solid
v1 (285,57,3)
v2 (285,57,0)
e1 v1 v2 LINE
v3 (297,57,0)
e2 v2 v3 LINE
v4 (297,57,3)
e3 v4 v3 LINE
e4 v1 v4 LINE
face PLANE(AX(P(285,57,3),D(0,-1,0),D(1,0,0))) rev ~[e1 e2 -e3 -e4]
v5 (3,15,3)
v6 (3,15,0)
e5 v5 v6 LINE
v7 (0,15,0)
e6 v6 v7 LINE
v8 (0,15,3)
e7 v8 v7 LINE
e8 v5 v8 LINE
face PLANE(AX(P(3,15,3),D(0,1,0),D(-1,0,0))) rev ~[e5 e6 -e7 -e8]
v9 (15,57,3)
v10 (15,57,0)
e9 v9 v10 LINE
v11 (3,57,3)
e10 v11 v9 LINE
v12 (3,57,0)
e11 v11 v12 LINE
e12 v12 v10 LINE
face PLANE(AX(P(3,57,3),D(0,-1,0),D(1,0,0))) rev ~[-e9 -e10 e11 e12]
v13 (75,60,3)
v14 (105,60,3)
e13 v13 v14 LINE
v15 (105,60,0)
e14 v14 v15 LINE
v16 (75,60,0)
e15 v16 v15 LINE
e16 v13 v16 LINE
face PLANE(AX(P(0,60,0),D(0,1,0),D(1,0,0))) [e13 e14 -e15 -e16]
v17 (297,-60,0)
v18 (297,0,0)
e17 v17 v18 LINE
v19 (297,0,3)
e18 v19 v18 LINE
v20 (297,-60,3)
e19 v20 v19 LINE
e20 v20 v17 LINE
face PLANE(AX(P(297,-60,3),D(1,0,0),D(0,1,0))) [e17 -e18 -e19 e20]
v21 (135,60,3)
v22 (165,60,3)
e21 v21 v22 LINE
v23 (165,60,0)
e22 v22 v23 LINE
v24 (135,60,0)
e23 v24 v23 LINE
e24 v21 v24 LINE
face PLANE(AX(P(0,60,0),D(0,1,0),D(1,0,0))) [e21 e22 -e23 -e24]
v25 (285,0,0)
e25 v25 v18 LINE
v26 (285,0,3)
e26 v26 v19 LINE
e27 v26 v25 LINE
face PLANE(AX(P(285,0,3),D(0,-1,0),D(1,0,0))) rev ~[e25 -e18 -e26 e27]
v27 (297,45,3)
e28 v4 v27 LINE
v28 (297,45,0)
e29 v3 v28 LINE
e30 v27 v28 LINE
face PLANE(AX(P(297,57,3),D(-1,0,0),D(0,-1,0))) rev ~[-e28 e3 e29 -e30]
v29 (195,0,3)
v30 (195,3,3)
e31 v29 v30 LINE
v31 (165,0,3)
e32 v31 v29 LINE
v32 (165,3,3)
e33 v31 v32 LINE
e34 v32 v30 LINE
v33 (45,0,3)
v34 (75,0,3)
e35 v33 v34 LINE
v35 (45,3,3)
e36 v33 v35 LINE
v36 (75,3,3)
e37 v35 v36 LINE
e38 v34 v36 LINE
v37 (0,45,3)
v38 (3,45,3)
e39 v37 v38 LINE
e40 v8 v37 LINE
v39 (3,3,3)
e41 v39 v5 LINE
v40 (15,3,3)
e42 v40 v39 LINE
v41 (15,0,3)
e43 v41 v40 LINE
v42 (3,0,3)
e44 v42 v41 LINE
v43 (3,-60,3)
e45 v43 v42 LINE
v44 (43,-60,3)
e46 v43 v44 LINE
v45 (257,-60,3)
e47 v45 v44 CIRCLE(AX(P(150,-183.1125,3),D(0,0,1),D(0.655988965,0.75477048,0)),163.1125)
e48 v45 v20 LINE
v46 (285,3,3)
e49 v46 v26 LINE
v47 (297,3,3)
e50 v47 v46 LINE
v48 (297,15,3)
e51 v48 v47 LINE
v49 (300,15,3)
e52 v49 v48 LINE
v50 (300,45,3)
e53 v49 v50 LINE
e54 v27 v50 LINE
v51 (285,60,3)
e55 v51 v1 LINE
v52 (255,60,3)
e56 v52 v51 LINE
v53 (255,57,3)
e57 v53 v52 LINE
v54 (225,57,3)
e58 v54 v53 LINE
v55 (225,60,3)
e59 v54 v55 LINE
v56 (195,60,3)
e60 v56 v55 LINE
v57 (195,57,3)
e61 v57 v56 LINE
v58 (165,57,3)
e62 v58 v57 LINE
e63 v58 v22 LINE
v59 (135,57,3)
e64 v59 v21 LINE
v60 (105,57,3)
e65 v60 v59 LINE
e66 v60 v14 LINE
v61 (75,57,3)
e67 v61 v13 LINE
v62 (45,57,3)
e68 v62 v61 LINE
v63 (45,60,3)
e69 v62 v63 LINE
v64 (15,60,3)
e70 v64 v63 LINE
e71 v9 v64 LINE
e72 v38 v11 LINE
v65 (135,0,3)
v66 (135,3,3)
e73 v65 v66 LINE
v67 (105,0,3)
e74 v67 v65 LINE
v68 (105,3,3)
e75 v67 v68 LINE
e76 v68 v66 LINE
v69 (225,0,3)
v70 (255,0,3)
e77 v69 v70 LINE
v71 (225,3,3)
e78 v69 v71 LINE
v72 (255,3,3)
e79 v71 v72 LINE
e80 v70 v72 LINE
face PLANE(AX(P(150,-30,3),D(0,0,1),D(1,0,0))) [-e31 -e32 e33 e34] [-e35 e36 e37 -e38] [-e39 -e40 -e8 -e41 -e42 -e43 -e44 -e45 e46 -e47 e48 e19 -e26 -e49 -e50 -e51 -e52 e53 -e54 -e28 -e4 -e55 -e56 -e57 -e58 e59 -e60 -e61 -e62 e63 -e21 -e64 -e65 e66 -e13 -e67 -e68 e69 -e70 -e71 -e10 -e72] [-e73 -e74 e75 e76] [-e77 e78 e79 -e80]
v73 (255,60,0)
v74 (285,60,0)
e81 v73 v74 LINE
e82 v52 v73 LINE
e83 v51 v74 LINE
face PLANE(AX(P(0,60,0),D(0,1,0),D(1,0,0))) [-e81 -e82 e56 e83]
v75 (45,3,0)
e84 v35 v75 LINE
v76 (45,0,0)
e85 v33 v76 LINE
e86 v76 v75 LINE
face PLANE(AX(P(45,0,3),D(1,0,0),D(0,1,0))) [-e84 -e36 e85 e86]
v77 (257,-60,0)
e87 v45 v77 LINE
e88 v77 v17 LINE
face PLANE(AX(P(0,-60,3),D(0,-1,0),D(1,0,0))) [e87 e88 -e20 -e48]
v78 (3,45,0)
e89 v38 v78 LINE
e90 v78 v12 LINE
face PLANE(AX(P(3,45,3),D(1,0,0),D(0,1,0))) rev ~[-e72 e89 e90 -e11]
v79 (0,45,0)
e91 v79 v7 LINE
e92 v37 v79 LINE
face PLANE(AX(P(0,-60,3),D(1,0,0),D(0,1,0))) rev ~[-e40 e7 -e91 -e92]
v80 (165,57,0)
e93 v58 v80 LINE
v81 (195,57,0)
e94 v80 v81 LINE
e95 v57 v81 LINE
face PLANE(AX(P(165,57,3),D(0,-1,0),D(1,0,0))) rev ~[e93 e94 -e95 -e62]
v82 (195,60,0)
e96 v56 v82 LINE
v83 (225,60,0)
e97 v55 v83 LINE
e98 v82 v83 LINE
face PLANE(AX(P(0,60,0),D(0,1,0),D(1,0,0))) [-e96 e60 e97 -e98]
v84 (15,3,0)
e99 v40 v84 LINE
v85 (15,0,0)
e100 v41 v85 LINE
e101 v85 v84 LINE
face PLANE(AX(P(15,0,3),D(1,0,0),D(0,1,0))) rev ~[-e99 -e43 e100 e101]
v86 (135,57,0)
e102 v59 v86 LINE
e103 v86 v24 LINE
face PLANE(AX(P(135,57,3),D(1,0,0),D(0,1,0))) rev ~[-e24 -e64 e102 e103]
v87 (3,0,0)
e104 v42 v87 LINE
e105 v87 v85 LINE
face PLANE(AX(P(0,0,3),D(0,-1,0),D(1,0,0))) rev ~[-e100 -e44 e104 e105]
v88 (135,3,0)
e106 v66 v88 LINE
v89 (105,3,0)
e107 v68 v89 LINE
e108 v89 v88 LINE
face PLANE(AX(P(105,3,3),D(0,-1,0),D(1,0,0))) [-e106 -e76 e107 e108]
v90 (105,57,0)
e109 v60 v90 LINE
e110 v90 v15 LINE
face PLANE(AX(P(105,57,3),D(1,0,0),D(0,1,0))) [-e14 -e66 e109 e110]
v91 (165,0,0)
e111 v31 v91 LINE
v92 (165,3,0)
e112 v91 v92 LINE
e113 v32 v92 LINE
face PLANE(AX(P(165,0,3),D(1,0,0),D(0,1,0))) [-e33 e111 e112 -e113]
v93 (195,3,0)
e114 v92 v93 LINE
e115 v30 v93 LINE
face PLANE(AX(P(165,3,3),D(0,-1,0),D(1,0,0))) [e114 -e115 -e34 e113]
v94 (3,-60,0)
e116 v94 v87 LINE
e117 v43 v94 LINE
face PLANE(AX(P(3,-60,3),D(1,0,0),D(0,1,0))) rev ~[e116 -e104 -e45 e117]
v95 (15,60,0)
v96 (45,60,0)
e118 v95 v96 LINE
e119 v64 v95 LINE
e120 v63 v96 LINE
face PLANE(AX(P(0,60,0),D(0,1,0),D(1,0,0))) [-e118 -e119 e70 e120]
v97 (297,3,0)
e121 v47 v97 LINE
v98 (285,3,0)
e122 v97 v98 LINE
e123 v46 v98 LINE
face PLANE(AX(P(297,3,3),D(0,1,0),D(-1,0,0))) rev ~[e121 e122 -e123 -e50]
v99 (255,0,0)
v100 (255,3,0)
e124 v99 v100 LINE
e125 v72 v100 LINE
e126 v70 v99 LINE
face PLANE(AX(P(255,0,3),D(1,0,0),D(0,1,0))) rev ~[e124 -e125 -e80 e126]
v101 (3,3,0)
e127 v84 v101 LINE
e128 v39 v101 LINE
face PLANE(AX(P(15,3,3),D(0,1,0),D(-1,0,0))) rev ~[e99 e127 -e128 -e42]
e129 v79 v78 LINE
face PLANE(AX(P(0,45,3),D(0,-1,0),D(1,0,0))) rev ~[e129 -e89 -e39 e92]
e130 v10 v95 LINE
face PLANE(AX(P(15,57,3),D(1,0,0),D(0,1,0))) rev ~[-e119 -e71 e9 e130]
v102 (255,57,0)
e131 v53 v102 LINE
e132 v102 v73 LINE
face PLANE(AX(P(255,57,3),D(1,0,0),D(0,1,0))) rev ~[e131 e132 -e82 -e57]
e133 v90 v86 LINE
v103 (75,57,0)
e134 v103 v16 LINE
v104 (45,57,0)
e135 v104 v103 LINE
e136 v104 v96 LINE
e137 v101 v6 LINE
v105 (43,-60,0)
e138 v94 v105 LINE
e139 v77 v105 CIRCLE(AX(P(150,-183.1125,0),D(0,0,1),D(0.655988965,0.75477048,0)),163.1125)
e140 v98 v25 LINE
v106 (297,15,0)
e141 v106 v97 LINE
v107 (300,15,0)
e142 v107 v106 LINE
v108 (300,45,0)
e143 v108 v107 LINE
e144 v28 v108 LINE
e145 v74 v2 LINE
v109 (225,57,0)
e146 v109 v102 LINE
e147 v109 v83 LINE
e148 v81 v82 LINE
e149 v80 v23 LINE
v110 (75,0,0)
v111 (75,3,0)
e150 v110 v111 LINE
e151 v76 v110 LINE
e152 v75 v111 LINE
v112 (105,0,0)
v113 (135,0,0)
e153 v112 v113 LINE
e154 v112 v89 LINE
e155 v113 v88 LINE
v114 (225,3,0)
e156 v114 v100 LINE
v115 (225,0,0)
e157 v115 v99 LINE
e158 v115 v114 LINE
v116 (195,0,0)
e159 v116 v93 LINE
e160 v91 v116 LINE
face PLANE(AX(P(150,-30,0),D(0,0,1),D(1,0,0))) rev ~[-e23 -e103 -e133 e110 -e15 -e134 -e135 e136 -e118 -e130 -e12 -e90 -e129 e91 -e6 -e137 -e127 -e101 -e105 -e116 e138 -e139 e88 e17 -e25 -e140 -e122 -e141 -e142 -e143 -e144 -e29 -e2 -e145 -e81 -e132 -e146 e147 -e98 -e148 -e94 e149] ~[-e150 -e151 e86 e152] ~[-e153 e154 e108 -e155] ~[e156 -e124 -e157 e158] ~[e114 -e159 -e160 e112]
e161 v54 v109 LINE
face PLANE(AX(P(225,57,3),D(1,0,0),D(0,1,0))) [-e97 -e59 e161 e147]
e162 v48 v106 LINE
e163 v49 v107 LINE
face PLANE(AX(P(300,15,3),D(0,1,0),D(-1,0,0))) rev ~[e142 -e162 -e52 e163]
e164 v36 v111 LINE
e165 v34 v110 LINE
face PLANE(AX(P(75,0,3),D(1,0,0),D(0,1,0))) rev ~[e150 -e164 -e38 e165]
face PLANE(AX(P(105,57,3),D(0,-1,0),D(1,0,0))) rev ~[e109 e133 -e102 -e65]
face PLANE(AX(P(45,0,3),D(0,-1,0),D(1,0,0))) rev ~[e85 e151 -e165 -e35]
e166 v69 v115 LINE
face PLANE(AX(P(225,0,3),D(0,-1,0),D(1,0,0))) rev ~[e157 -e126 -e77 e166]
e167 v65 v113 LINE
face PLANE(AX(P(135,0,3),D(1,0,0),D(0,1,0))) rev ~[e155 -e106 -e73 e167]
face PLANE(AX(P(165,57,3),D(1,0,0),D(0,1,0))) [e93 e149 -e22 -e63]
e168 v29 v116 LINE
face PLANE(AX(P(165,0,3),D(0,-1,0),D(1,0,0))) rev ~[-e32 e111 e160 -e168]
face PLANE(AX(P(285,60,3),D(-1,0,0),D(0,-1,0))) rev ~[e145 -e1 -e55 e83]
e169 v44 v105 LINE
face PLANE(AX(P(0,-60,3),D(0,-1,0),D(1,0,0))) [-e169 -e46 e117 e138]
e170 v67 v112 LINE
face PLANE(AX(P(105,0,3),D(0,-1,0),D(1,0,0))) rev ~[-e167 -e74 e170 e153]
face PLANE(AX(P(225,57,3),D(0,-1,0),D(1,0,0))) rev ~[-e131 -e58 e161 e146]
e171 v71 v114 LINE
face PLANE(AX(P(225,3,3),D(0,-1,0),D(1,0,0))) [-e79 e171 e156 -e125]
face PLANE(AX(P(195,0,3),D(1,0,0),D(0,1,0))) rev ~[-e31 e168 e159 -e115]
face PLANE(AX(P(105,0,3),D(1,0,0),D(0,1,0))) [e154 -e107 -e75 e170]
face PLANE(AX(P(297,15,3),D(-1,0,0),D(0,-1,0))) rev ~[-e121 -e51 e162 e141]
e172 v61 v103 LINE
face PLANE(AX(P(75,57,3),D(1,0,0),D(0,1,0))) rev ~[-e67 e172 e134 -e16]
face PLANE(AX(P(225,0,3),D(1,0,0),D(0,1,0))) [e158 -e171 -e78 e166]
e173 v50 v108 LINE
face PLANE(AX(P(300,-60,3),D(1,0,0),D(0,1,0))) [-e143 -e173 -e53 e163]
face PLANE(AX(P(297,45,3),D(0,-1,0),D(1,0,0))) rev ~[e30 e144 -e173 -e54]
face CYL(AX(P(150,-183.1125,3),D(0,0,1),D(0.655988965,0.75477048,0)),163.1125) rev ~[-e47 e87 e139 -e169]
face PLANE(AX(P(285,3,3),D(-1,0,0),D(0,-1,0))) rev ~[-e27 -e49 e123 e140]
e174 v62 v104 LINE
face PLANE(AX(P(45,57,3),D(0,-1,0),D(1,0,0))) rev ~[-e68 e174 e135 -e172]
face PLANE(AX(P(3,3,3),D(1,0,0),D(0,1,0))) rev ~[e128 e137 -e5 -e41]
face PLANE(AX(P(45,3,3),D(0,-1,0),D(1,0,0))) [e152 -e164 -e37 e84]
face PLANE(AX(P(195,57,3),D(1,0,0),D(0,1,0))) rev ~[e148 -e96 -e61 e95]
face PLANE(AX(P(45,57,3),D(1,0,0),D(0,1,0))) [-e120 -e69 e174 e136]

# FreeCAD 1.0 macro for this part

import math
import FreeCAD as App
import Part
import Sketcher

V = App.Vector


def add_polygon(sketch, points):
    """Adds a closed chain of lines whose ends are joined by coincident constraints."""
    first, n = sketch.GeometryCount, len(points)
    for a, b in zip(points, points[1:] + points[:1]):
        sketch.addGeometry(Part.LineSegment(App.Vector(*a, 0), App.Vector(*b, 0)), False)
    for i in range(n):
        sketch.addConstraint(Sketcher.Constraint("Coincident", first + i, 2, first + (i + 1) % n, 1))

doc = App.newDocument("Part")
body = doc.addObject("PartDesign::Body", "Body")

# Sketch on XY plane
sketch1 = body.newObject("Sketcher::SketchObject", "Sketch")
sketch1.AttachmentSupport = (doc.getObject("XY_Plane"), [""])
sketch1.MapMode = "FlatFace"
add_polygon(sketch1, [(0, 60), (0, 0), (300, 0), (300, 60)])  # lines 0-3
sketch1.addConstraint(Sketcher.Constraint("Vertical", 0))
sketch1.addConstraint(Sketcher.Constraint("Horizontal", 1))
sketch1.addConstraint(Sketcher.Constraint("Vertical", 2))
sketch1.addConstraint(Sketcher.Constraint("Horizontal", 3))
sketch1.addConstraint(Sketcher.Constraint("Coincident", 0, 2, -1, 1))
sketch1.addConstraint(Sketcher.Constraint("DistanceX", 1, 1, 1, 2, 300.0))
sketch1.addConstraint(Sketcher.Constraint("DistanceY", 0, 2, 0, 1, 60.0))
pad1 = body.newObject("PartDesign::Pad", "Pad")
pad1.Profile = sketch1
pad1.Length = 3

# Sketch on XY plane
sketch2 = body.newObject("Sketcher::SketchObject", "Sketch001")
sketch2.AttachmentSupport = (doc.getObject("XY_Plane"), [""])
sketch2.MapMode = "FlatFace"
sketch2.AttachmentOffset = App.Placement(V(0, 0, 3), App.Rotation())
add_polygon(sketch2, [(0, 0), (0, -60), (300, -60), (300, 0)])  # lines 0-3
sketch2.addConstraint(Sketcher.Constraint("Vertical", 0))
sketch2.addConstraint(Sketcher.Constraint("Horizontal", 1))
sketch2.addConstraint(Sketcher.Constraint("Vertical", 2))
sketch2.addConstraint(Sketcher.Constraint("Horizontal", 3))
sketch2.addConstraint(Sketcher.Constraint("Coincident", 3, 2, -1, 1))
sketch2.addConstraint(Sketcher.Constraint("DistanceX", 1, 1, 1, 2, 300.0))
sketch2.addConstraint(Sketcher.Constraint("DistanceY", 0, 2, 0, 1, 60.0))
pad2 = body.newObject("PartDesign::Pad", "Pad001")
pad2.Profile = sketch2
pad2.Length = 3
pad2.Reversed = True

# Sketch on XY plane
sketch3 = body.newObject("Sketcher::SketchObject", "Sketch002")
sketch3.AttachmentSupport = (doc.getObject("XY_Plane"), [""])
sketch3.MapMode = "FlatFace"
sketch3.AttachmentOffset = App.Placement(V(0, 0, 3), App.Rotation())
add_polygon(sketch3, [(15, 0), (15, 3), (3, 3), (3, 15), (0, 15), (0, 0)])  # lines 0-5
add_polygon(sketch3, [(45, 3), (45, 0), (75, 0), (75, 3)])  # lines 6-9
add_polygon(sketch3, [(105, 3), (105, 0), (135, 0), (135, 3)])  # lines 10-13
add_polygon(sketch3, [(165, 3), (165, 0), (195, 0), (195, 3)])  # lines 14-17
add_polygon(sketch3, [(225, 3), (225, 0), (255, 0), (255, 3)])  # lines 18-21
add_polygon(sketch3, [(300, 0), (300, 15), (297, 15), (297, 3), (285, 3), (285, 0)])  # lines 22-27
add_polygon(sketch3, [(300, 45), (300, 60), (285, 60), (285, 57), (297, 57), (297, 45)])  # lines 28-33
add_polygon(sketch3, [(225, 60), (225, 57), (255, 57), (255, 60)])  # lines 34-37
add_polygon(sketch3, [(165, 60), (165, 57), (195, 57), (195, 60)])  # lines 38-41
add_polygon(sketch3, [(105, 60), (105, 57), (135, 57), (135, 60)])  # lines 42-45
add_polygon(sketch3, [(45, 60), (45, 57), (75, 57), (75, 60)])  # lines 46-49
add_polygon(sketch3, [(0, 60), (0, 45), (3, 45), (3, 57), (15, 57), (15, 60)])  # lines 50-55
sketch3.addConstraint(Sketcher.Constraint("Vertical", 0))
sketch3.addConstraint(Sketcher.Constraint("Horizontal", 1))
sketch3.addConstraint(Sketcher.Constraint("Vertical", 2))
sketch3.addConstraint(Sketcher.Constraint("Horizontal", 3))
sketch3.addConstraint(Sketcher.Constraint("Vertical", 4))
sketch3.addConstraint(Sketcher.Constraint("Horizontal", 5))
sketch3.addConstraint(Sketcher.Constraint("Vertical", 6))
sketch3.addConstraint(Sketcher.Constraint("Horizontal", 7))
sketch3.addConstraint(Sketcher.Constraint("Vertical", 8))
sketch3.addConstraint(Sketcher.Constraint("Horizontal", 9))
sketch3.addConstraint(Sketcher.Constraint("Vertical", 10))
sketch3.addConstraint(Sketcher.Constraint("Horizontal", 11))
sketch3.addConstraint(Sketcher.Constraint("Vertical", 12))
sketch3.addConstraint(Sketcher.Constraint("Horizontal", 13))
sketch3.addConstraint(Sketcher.Constraint("Vertical", 14))
sketch3.addConstraint(Sketcher.Constraint("Horizontal", 15))
sketch3.addConstraint(Sketcher.Constraint("Vertical", 16))
sketch3.addConstraint(Sketcher.Constraint("Horizontal", 17))
sketch3.addConstraint(Sketcher.Constraint("Vertical", 18))
sketch3.addConstraint(Sketcher.Constraint("Horizontal", 19))
sketch3.addConstraint(Sketcher.Constraint("Vertical", 20))
sketch3.addConstraint(Sketcher.Constraint("Horizontal", 21))
sketch3.addConstraint(Sketcher.Constraint("Vertical", 22))
sketch3.addConstraint(Sketcher.Constraint("Horizontal", 23))
sketch3.addConstraint(Sketcher.Constraint("Vertical", 24))
sketch3.addConstraint(Sketcher.Constraint("Horizontal", 25))
sketch3.addConstraint(Sketcher.Constraint("Vertical", 26))
sketch3.addConstraint(Sketcher.Constraint("Horizontal", 27))
sketch3.addConstraint(Sketcher.Constraint("Vertical", 28))
sketch3.addConstraint(Sketcher.Constraint("Horizontal", 29))
sketch3.addConstraint(Sketcher.Constraint("Vertical", 30))
sketch3.addConstraint(Sketcher.Constraint("Horizontal", 31))
sketch3.addConstraint(Sketcher.Constraint("Vertical", 32))
sketch3.addConstraint(Sketcher.Constraint("Horizontal", 33))
sketch3.addConstraint(Sketcher.Constraint("Vertical", 34))
sketch3.addConstraint(Sketcher.Constraint("Horizontal", 35))
sketch3.addConstraint(Sketcher.Constraint("Vertical", 36))
sketch3.addConstraint(Sketcher.Constraint("Horizontal", 37))
sketch3.addConstraint(Sketcher.Constraint("Vertical", 38))
sketch3.addConstraint(Sketcher.Constraint("Horizontal", 39))
sketch3.addConstraint(Sketcher.Constraint("Vertical", 40))
sketch3.addConstraint(Sketcher.Constraint("Horizontal", 41))
sketch3.addConstraint(Sketcher.Constraint("Vertical", 42))
sketch3.addConstraint(Sketcher.Constraint("Horizontal", 43))
sketch3.addConstraint(Sketcher.Constraint("Vertical", 44))
sketch3.addConstraint(Sketcher.Constraint("Horizontal", 45))
sketch3.addConstraint(Sketcher.Constraint("Vertical", 46))
sketch3.addConstraint(Sketcher.Constraint("Horizontal", 47))
sketch3.addConstraint(Sketcher.Constraint("Vertical", 48))
sketch3.addConstraint(Sketcher.Constraint("Horizontal", 49))
sketch3.addConstraint(Sketcher.Constraint("Vertical", 50))
sketch3.addConstraint(Sketcher.Constraint("Horizontal", 51))
sketch3.addConstraint(Sketcher.Constraint("Vertical", 52))
sketch3.addConstraint(Sketcher.Constraint("Horizontal", 53))
sketch3.addConstraint(Sketcher.Constraint("Vertical", 54))
sketch3.addConstraint(Sketcher.Constraint("Horizontal", 55))
sketch3.addConstraint(Sketcher.Constraint("Coincident", 4, 2, -1, 1))
sketch3.addConstraint(Sketcher.Constraint("PointOnObject", 6, 2, -1))
sketch3.addConstraint(Sketcher.Constraint("PointOnObject", 10, 2, -1))
sketch3.addConstraint(Sketcher.Constraint("PointOnObject", 14, 2, -1))
sketch3.addConstraint(Sketcher.Constraint("PointOnObject", 18, 2, -1))
sketch3.addConstraint(Sketcher.Constraint("PointOnObject", 26, 2, -1))
sketch3.addConstraint(Sketcher.Constraint("PointOnObject", 50, 2, -2))
sketch3.addConstraint(Sketcher.Constraint("Horizontal", 1, 2, 8, 2))
sketch3.addConstraint(Sketcher.Constraint("Horizontal", 9, 2, 12, 2))
sketch3.addConstraint(Sketcher.Constraint("Horizontal", 13, 2, 16, 2))
sketch3.addConstraint(Sketcher.Constraint("Horizontal", 17, 2, 20, 2))
sketch3.addConstraint(Sketcher.Constraint("Horizontal", 3, 2, 22, 2))
sketch3.addConstraint(Sketcher.Constraint("Horizontal", 21, 2, 24, 2))
sketch3.addConstraint(Sketcher.Constraint("Horizontal", 31, 2, 34, 2))
sketch3.addConstraint(Sketcher.Constraint("Horizontal", 29, 2, 36, 2))
sketch3.addConstraint(Sketcher.Constraint("Horizontal", 35, 2, 38, 2))
sketch3.addConstraint(Sketcher.Constraint("Horizontal", 37, 2, 40, 2))
sketch3.addConstraint(Sketcher.Constraint("Horizontal", 39, 2, 42, 2))
sketch3.addConstraint(Sketcher.Constraint("Horizontal", 41, 2, 44, 2))
sketch3.addConstraint(Sketcher.Constraint("Horizontal", 43, 2, 46, 2))
sketch3.addConstraint(Sketcher.Constraint("Horizontal", 45, 2, 48, 2))
sketch3.addConstraint(Sketcher.Constraint("Horizontal", 33, 2, 50, 2))
sketch3.addConstraint(Sketcher.Constraint("Horizontal", 47, 2, 52, 2))
sketch3.addConstraint(Sketcher.Constraint("Horizontal", 49, 2, 54, 2))
sketch3.addConstraint(Sketcher.Constraint("Vertical", 27, 2, 28, 2))
sketch3.addConstraint(Sketcher.Constraint("Vertical", 26, 2, 29, 2))
sketch3.addConstraint(Sketcher.Constraint("Vertical", 24, 2, 31, 2))
sketch3.addConstraint(Sketcher.Constraint("Vertical", 21, 2, 34, 2))
sketch3.addConstraint(Sketcher.Constraint("Vertical", 20, 2, 35, 2))
sketch3.addConstraint(Sketcher.Constraint("Vertical", 17, 2, 38, 2))
sketch3.addConstraint(Sketcher.Constraint("Vertical", 16, 2, 39, 2))
sketch3.addConstraint(Sketcher.Constraint("Vertical", 13, 2, 42, 2))
sketch3.addConstraint(Sketcher.Constraint("Vertical", 12, 2, 43, 2))
sketch3.addConstraint(Sketcher.Constraint("Vertical", 9, 2, 46, 2))
sketch3.addConstraint(Sketcher.Constraint("Vertical", 8, 2, 47, 2))
sketch3.addConstraint(Sketcher.Constraint("Vertical", 2, 2, 51, 2))
sketch3.addConstraint(Sketcher.Constraint("Vertical", 5, 2, 53, 2))
sketch3.addConstraint(Sketcher.Constraint("Equal", 9, 11))
sketch3.addConstraint(Sketcher.Constraint("Equal", 13, 15))
sketch3.addConstraint(Sketcher.Constraint("Equal", 17, 19))
sketch3.addConstraint(Sketcher.Constraint("Equal", 3, 23))
sketch3.addConstraint(Sketcher.Constraint("Equal", 1, 25))
sketch3.addConstraint(Sketcher.Constraint("Equal", 51, 0))
sketch3.addConstraint(Sketcher.Constraint("Equal", 53, 2))
sketch3.addConstraint(Sketcher.Constraint("Equal", 22, 28))
sketch3.addConstraint(Sketcher.Constraint("Equal", 26, 30))
sketch3.addConstraint(Sketcher.Constraint("DistanceX", 1, 2, 1, 1, 12.0))
sketch3.addConstraint(Sketcher.Constraint("DistanceX", 3, 2, 3, 1, 3.0))
sketch3.addConstraint(Sketcher.Constraint("DistanceX", 7, 1, 7, 2, 30.0))
sketch3.addConstraint(Sketcher.Constraint("DistanceX", -1, 1, 6, 2, 45.0))
sketch3.addConstraint(Sketcher.Constraint("DistanceX", -1, 1, 10, 2, 105.0))
sketch3.addConstraint(Sketcher.Constraint("DistanceX", -1, 1, 14, 2, 165.0))
sketch3.addConstraint(Sketcher.Constraint("DistanceX", -1, 1, 18, 2, 225.0))
sketch3.addConstraint(Sketcher.Constraint("DistanceX", -1, 1, 22, 2, 300.0))
sketch3.addConstraint(Sketcher.Constraint("DistanceY", -1, 1, 28, 2, 60.0))
pocket1 = body.newObject("PartDesign::Pocket", "Pocket")
pocket1.Profile = sketch3
pocket1.Length = 5

# Sketch on XY plane
sketch4 = body.newObject("Sketcher::SketchObject", "Sketch003")
sketch4.AttachmentSupport = (doc.getObject("XY_Plane"), [""])
sketch4.MapMode = "FlatFace"
sketch4.AttachmentOffset = App.Placement(V(0, 0, 3), App.Rotation())
add_polygon(sketch4, [(0, 0), (0, -60), (3, -60), (3, 0)])  # lines 0-3
add_polygon(sketch4, [(297, 0), (297, -60), (300, -60), (300, 0)])  # lines 4-7
sketch4.addGeometry(Part.LineSegment(V(43, -60, 0), V(257, -60, 0)), False)  # 8
sketch4.addGeometry(Part.ArcOfCircle(Part.Circle(V(150, -183.1, 0), V(0, 0, 1), 163.1), math.radians(49), math.radians(131)), False)  # 9
sketch4.addConstraint(Sketcher.Constraint("Coincident", 8, 1, 9, 2))
sketch4.addConstraint(Sketcher.Constraint("Coincident", 9, 1, 8, 2))
sketch4.addConstraint(Sketcher.Constraint("Vertical", 0))
sketch4.addConstraint(Sketcher.Constraint("Horizontal", 1))
sketch4.addConstraint(Sketcher.Constraint("Vertical", 2))
sketch4.addConstraint(Sketcher.Constraint("Horizontal", 3))
sketch4.addConstraint(Sketcher.Constraint("Vertical", 4))
sketch4.addConstraint(Sketcher.Constraint("Horizontal", 5))
sketch4.addConstraint(Sketcher.Constraint("Vertical", 6))
sketch4.addConstraint(Sketcher.Constraint("Horizontal", 7))
sketch4.addConstraint(Sketcher.Constraint("Horizontal", 8))
sketch4.addConstraint(Sketcher.Constraint("Coincident", 3, 2, -1, 1))
sketch4.addConstraint(Sketcher.Constraint("PointOnObject", 6, 2, -1))
sketch4.addConstraint(Sketcher.Constraint("Horizontal", 1, 2, 4, 2))
sketch4.addConstraint(Sketcher.Constraint("Horizontal", 5, 2, 8, 1))
sketch4.addConstraint(Sketcher.Constraint("Equal", 3, 5))
sketch4.addConstraint(Sketcher.Constraint("DistanceX", 1, 1, 1, 2, 3.0))
sketch4.addConstraint(Sketcher.Constraint("DistanceX", 8, 1, 8, 2, 214.0))
sketch4.addConstraint(Sketcher.Constraint("DistanceY", 0, 2, 0, 1, 60.0))
sketch4.addConstraint(Sketcher.Constraint("DistanceX", -1, 1, 9, 3, 150.0))
sketch4.addConstraint(Sketcher.Constraint("DistanceX", -1, 1, 4, 2, 297.0))
sketch4.addConstraint(Sketcher.Constraint("Radius", 9, 163.1125))
pocket2 = body.newObject("PartDesign::Pocket", "Pocket001")
pocket2.Profile = sketch4
pocket2.Length = 5

doc.recompute()
